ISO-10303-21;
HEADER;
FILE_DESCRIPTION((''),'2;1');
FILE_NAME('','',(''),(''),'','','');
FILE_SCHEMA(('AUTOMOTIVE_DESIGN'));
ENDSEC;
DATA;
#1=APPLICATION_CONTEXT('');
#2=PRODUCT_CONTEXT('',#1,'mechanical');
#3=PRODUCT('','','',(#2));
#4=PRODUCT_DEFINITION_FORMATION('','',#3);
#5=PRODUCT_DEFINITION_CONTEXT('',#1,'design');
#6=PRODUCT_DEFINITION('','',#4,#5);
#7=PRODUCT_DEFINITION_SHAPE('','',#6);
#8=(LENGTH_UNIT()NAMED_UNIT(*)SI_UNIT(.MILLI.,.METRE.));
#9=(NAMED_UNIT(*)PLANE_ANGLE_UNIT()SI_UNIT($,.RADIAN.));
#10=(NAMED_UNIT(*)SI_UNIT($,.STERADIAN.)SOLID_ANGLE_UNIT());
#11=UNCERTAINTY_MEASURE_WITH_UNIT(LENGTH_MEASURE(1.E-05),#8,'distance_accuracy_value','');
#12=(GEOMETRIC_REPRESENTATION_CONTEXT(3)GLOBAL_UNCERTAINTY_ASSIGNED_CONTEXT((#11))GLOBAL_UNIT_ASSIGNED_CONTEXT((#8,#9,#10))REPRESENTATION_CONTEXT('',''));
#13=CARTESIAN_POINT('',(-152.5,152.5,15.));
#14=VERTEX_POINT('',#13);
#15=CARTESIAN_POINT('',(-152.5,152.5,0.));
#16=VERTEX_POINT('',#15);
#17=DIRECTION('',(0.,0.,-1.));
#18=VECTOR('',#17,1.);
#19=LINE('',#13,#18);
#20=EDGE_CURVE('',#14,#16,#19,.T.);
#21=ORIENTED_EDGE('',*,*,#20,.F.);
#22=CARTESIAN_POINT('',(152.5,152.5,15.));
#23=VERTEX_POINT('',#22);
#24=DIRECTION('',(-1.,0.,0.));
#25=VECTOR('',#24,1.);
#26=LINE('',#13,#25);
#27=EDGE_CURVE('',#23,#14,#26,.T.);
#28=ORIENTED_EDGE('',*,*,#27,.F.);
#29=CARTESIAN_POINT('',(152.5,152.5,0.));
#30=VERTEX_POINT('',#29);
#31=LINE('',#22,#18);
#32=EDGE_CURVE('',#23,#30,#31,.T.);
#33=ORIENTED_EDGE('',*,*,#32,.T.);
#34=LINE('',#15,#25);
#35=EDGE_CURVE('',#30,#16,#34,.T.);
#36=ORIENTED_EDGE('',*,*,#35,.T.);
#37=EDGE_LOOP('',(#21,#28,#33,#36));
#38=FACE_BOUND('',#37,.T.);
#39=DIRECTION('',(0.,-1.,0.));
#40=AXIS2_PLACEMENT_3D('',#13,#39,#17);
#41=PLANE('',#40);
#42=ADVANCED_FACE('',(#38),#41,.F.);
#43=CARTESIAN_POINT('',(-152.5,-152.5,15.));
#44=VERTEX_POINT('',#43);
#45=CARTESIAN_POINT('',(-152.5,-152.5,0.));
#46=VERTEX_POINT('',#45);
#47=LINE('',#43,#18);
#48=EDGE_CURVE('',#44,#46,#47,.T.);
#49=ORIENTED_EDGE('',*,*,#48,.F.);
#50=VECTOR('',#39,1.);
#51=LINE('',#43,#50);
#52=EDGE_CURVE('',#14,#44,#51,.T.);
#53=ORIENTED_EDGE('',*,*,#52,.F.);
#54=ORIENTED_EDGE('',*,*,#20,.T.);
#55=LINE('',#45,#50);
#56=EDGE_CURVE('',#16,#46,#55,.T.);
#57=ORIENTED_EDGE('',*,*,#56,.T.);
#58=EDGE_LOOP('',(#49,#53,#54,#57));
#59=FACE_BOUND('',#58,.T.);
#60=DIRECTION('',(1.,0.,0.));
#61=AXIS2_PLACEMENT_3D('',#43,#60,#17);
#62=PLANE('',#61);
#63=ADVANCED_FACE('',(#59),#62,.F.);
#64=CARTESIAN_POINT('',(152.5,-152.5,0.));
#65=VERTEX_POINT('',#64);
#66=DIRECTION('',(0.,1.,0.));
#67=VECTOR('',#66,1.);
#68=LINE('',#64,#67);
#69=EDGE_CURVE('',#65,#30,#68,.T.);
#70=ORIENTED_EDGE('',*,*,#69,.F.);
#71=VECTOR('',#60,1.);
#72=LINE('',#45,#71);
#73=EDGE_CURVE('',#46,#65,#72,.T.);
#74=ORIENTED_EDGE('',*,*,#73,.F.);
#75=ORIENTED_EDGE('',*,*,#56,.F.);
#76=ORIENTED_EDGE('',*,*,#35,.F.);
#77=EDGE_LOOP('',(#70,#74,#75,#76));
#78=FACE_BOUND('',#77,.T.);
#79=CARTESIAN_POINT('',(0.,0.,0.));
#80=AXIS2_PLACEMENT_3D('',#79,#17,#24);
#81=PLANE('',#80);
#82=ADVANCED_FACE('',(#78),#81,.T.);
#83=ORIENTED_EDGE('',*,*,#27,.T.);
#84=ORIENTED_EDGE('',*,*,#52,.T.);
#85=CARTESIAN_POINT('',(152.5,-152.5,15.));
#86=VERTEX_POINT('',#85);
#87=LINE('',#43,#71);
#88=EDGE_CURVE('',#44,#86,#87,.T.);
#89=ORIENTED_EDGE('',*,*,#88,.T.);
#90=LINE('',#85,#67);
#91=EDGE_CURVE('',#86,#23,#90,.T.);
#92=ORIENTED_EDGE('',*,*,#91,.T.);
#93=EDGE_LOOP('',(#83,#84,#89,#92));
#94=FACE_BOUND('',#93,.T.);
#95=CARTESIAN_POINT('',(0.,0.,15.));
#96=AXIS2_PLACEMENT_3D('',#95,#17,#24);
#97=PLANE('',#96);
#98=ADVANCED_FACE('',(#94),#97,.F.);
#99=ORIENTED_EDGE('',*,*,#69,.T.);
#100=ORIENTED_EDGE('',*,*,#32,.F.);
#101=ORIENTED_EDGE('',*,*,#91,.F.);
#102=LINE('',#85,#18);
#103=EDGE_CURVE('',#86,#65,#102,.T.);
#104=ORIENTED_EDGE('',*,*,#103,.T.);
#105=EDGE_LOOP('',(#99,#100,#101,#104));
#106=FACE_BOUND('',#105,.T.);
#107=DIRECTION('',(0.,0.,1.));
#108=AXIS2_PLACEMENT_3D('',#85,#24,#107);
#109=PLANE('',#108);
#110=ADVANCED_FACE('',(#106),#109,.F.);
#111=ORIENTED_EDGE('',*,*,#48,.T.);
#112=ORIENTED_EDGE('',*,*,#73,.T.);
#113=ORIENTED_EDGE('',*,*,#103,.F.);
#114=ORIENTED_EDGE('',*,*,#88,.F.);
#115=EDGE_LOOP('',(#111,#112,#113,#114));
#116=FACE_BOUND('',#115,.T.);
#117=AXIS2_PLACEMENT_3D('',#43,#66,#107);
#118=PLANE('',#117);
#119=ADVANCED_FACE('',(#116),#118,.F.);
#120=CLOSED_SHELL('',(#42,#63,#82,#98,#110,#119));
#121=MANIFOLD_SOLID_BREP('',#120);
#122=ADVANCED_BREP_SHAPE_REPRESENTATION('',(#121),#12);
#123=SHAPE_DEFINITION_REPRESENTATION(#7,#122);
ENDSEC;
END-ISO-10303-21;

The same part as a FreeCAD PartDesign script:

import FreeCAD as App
import Part
import Sketcher
Q = App.Units.Quantity

doc = App.newDocument("Part")
body = doc.addObject("PartDesign::Body", "Body")

sketch1 = doc.addObject("Sketcher::SketchObject", "Sketch")
body.addObject(sketch1)
sketch1.AttachmentSupport = (doc.XY_Plane, [""])
sketch1.MapMode = "FlatFace"
sketch1.addGeometry([
    Part.LineSegment(App.Vector(-152, 152, 0), App.Vector(-152, -152, 0)),
    Part.LineSegment(App.Vector(-152, -152, 0), App.Vector(152, -152, 0)),
    Part.LineSegment(App.Vector(152, -152, 0), App.Vector(152, 152, 0)),
    Part.LineSegment(App.Vector(152, 152, 0), App.Vector(-152, 152, 0)),
], False)
sketch1.addConstraint([
    Sketcher.Constraint("Coincident", 0, 2, 1, 1),
    Sketcher.Constraint("Coincident", 1, 2, 2, 1),
    Sketcher.Constraint("Coincident", 2, 2, 3, 1),
    Sketcher.Constraint("Coincident", 3, 2, 0, 1),
    Sketcher.Constraint("Vertical", 0),
    Sketcher.Constraint("Horizontal", 1),
    Sketcher.Constraint("Vertical", 2),
    Sketcher.Constraint("Horizontal", 3),
    Sketcher.Constraint("Symmetric", 0, 2, 2, 2, -1, 1),
    Sketcher.Constraint("Equal", 3, 0),
    Sketcher.Constraint("DistanceX", 1, 1, 1, 2, Q("305 mm")),
])
pad1 = doc.addObject("PartDesign::Pad", "Pad")
body.addObject(pad1)
pad1.Profile = sketch1
pad1.Length = 15

doc.recompute()
